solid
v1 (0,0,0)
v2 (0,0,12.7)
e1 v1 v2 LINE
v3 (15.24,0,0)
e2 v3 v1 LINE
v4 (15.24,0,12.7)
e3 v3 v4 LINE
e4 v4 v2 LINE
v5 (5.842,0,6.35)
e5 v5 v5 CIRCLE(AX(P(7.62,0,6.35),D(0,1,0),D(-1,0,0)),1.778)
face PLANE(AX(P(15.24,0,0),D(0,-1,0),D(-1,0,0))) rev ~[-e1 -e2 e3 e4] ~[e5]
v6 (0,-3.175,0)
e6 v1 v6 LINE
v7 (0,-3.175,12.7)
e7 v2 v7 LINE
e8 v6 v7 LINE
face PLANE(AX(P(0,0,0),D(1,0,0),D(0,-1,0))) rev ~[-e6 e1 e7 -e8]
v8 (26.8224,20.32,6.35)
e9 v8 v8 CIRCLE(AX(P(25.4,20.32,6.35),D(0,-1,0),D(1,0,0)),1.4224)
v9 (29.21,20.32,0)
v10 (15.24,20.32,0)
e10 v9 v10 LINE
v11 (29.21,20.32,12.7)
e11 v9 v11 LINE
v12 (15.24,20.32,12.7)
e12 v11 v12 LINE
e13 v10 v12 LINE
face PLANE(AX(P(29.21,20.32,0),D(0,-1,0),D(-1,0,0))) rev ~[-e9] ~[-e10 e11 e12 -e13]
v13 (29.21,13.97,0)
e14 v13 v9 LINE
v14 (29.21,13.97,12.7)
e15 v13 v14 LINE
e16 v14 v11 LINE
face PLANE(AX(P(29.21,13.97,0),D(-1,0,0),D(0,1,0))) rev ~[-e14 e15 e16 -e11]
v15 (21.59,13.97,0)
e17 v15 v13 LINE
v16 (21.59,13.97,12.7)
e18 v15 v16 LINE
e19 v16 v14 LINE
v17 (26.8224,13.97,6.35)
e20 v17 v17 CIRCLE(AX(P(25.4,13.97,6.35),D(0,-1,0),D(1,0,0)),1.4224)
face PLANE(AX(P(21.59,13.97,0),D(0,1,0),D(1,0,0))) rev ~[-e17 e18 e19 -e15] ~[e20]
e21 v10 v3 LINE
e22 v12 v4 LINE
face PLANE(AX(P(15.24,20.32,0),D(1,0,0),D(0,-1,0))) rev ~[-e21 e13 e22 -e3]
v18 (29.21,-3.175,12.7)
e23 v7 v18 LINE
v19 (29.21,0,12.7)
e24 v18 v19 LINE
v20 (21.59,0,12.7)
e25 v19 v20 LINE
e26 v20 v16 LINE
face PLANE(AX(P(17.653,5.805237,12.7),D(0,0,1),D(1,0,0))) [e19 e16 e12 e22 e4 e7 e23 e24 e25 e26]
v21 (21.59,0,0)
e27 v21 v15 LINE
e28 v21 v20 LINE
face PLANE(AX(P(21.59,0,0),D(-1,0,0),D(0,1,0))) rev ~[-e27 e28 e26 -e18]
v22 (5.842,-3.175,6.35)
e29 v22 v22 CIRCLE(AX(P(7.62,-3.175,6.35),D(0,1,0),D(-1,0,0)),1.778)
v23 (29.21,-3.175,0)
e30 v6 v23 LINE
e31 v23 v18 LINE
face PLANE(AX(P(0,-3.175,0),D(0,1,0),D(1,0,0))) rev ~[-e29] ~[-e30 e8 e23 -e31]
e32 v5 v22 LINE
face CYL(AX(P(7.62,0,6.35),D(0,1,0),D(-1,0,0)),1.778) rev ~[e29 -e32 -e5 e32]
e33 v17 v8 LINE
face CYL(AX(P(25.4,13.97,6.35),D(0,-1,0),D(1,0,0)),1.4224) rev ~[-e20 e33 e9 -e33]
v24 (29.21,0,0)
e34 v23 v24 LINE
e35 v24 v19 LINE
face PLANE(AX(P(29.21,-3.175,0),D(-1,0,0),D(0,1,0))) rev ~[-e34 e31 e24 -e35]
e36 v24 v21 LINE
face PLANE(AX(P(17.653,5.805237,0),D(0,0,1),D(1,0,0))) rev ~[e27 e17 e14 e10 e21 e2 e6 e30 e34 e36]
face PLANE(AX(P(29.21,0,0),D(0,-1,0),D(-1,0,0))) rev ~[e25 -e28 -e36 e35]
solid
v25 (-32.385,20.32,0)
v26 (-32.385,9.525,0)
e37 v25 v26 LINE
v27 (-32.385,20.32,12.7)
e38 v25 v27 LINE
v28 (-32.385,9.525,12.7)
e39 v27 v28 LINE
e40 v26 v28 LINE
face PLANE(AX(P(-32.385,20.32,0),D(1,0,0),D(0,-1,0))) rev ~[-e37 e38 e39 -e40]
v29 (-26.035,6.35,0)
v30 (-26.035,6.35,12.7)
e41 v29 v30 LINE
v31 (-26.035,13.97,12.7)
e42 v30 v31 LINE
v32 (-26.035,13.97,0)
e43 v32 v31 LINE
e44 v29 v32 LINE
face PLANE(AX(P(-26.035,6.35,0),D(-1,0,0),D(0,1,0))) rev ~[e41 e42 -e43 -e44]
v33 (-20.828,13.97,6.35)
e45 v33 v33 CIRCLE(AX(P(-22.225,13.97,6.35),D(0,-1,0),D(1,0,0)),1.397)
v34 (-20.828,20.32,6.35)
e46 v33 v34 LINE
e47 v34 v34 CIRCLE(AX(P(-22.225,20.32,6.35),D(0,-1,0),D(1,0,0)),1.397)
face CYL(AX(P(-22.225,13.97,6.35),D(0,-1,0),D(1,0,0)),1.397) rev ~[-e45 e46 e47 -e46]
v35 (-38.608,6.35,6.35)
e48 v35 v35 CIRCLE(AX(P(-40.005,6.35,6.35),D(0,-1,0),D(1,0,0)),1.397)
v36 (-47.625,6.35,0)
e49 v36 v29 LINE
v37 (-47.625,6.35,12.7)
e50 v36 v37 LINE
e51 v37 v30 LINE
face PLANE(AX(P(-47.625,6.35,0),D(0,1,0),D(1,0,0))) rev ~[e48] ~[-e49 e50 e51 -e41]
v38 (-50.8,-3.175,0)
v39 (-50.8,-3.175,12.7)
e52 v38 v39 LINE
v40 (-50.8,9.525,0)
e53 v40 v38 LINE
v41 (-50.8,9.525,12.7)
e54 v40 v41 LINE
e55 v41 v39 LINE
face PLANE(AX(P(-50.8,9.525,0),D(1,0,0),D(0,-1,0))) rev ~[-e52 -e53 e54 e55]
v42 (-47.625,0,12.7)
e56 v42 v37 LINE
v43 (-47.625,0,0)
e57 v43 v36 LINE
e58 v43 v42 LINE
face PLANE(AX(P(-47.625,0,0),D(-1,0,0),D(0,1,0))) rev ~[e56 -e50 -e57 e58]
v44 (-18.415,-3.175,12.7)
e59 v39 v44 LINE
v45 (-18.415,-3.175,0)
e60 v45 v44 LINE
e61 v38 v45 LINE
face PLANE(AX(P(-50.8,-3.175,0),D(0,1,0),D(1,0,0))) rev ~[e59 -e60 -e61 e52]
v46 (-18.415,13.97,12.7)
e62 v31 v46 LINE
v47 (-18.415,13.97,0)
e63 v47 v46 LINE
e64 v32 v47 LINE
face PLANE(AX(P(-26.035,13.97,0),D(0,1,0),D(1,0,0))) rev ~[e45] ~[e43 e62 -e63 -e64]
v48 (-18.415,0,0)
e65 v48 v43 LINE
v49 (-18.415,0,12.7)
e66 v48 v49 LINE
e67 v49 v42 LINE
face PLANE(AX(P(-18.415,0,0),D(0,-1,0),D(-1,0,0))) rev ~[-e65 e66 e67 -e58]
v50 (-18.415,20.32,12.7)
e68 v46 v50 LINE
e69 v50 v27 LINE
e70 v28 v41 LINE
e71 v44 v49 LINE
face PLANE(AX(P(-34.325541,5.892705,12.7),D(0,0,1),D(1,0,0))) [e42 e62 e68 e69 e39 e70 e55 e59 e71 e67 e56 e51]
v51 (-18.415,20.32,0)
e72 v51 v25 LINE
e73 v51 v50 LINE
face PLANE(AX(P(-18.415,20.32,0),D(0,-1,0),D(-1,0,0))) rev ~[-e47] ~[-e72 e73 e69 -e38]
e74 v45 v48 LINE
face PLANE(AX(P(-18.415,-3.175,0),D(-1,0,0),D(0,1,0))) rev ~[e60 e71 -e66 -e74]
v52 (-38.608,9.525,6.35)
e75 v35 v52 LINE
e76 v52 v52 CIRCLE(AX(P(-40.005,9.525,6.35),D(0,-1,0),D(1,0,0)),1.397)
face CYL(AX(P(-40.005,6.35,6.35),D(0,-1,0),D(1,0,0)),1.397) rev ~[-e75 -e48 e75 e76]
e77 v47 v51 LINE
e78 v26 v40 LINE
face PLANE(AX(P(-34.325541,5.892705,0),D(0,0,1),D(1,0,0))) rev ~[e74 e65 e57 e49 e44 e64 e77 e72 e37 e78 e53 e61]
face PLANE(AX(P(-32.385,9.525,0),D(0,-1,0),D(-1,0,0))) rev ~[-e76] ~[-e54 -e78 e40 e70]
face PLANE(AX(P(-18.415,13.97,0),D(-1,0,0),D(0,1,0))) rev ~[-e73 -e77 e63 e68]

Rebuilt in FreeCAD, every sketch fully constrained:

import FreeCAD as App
import Part
import Sketcher
Q = App.Units.Quantity


def add_polygon(sketch, points):
    """Adds a closed chain of lines whose ends are joined by coincident constraints."""
    first, n = sketch.GeometryCount, len(points)
    for a, b in zip(points, points[1:] + points[:1]):
        sketch.addGeometry(Part.LineSegment(App.Vector(*a, 0), App.Vector(*b, 0)), False)
    for i in range(n):
        sketch.addConstraint(Sketcher.Constraint("Coincident", first + i, 2, first + (i + 1) % n, 1))

doc = App.newDocument("Part")
body = doc.addObject("PartDesign::Body", "Body")

# Sketch on XY plane
sketch1 = doc.addObject("Sketcher::SketchObject", "Sketch")
body.addObject(sketch1)
sketch1.AttachmentSupport = (doc.XY_Plane, [""])
sketch1.MapMode = "FlatFace"
add_polygon(sketch1, [(15.2, 0), (0, 0), (0, -3.2), (29.2, -3.2), (29.2, 0), (21.6, 0), (21.6, 14), (29.2, 14), (29.2, 20.3), (15.2, 20.3)])  # lines 0-9
sketch1.addConstraint([
    Sketcher.Constraint("Horizontal", 0),
    Sketcher.Constraint("Vertical", 1),
    Sketcher.Constraint("Horizontal", 2),
    Sketcher.Constraint("Vertical", 3),
    Sketcher.Constraint("Horizontal", 4),
    Sketcher.Constraint("Vertical", 5),
    Sketcher.Constraint("Horizontal", 6),
    Sketcher.Constraint("Vertical", 7),
    Sketcher.Constraint("Horizontal", 8),
    Sketcher.Constraint("Vertical", 9),
    Sketcher.Constraint("Coincident", 0, 2, -1, 1),
    Sketcher.Constraint("PointOnObject", 3, 2, -1),
    Sketcher.Constraint("Vertical", 3, 2, 6, 2),
    Sketcher.Constraint("Equal", 8, 5),
    Sketcher.Constraint("DistanceX", 0, 2, 0, 1, Q("0.6 in")),
    Sketcher.Constraint("DistanceX", 4, 2, 4, 1, Q("0.3 in")),
    Sketcher.Constraint("DistanceY", 9, 2, 9, 1, Q("0.8 in")),
    Sketcher.Constraint("DistanceX", 2, 1, 2, 2, Q("1.15 in")),
    Sketcher.Constraint("DistanceY", 1, 2, 1, 1, Q("0.125 in")),
])
pad1 = doc.addObject("PartDesign::Pad", "Pad")
body.addObject(pad1)
pad1.Profile = sketch1
pad1.Length = Q("0.5 in")

# Sketch on XZ plane
sketch2 = doc.addObject("Sketcher::SketchObject", "Sketch001")
body.addObject(sketch2)
sketch2.AttachmentSupport = (doc.XZ_Plane, [""])
sketch2.MapMode = "FlatFace"
sketch2.AttachmentOffset = App.Placement(App.Vector(0, 0, -0.55 * 25.4), App.Rotation())
sketch2.addGeometry(Part.Circle(App.Vector(25.4, 6.3, 0), App.Vector(0, 0, 1), 1.4), False)
sketch2.addConstraint([
    Sketcher.Constraint("Diameter", 0, Q("0.112 in")),
    Sketcher.Constraint("DistanceX", -1, 1, 0, 3, Q("1 in")),
    Sketcher.Constraint("DistanceY", -1, 1, 0, 3, Q("0.25 in")),
])
pocket1 = doc.addObject("PartDesign::Pocket", "Pocket")
body.addObject(pocket1)
pocket1.Profile = sketch2
pocket1.Length = Q("1 in")

# Sketch on XZ plane
sketch3 = doc.addObject("Sketcher::SketchObject", "Sketch002")
body.addObject(sketch3)
sketch3.AttachmentSupport = (doc.XZ_Plane, [""])
sketch3.MapMode = "FlatFace"
sketch3.addGeometry(Part.Circle(App.Vector(7.6, 6.3, 0), App.Vector(0, 0, 1), 1.8), False)
sketch3.addConstraint([
    Sketcher.Constraint("Diameter", 0, Q("0.14 in")),
    Sketcher.Constraint("DistanceX", -1, 1, 0, 3, Q("0.3 in")),
    Sketcher.Constraint("DistanceY", -1, 1, 0, 3, Q("0.25 in")),
])
pocket2 = doc.addObject("PartDesign::Pocket", "Pocket001")
body.addObject(pocket2)
pocket2.Profile = sketch3
pocket2.Length = Q("1 in")
pocket2.Reversed = True
body2 = doc.addObject("PartDesign::Body", "Body001")

# Sketch on XY plane
sketch4 = doc.addObject("Sketcher::SketchObject", "Sketch003")
body2.addObject(sketch4)
sketch4.AttachmentSupport = (doc.getObject("XY_Plane001"), [""])
sketch4.MapMode = "FlatFace"
add_polygon(sketch4, [(-47.6, 0), (-47.6, 6.3), (-26, 6.3), (-26, 14), (-18.4, 14), (-18.4, 20.3), (-32.4, 20.3), (-32.4, 9.5), (-50.8, 9.5), (-50.8, -3.2), (-18.4, -3.2), (-18.4, 0)])  # lines 0-11
sketch4.addConstraint([
    Sketcher.Constraint("Vertical", 0),
    Sketcher.Constraint("Horizontal", 1),
    Sketcher.Constraint("Vertical", 2),
    Sketcher.Constraint("Horizontal", 3),
    Sketcher.Constraint("Vertical", 4),
    Sketcher.Constraint("Horizontal", 5),
    Sketcher.Constraint("Vertical", 6),
    Sketcher.Constraint("Horizontal", 7),
    Sketcher.Constraint("Vertical", 8),
    Sketcher.Constraint("Horizontal", 9),
    Sketcher.Constraint("Vertical", 10),
    Sketcher.Constraint("Horizontal", 11),
    Sketcher.Constraint("PointOnObject", 10, 2, -1),
    Sketcher.Constraint("Vertical", 4, 2, 9, 2),
    Sketcher.Constraint("Equal", 3, 2),
    Sketcher.Constraint("Equal", 0, 4),
    Sketcher.Constraint("DistanceX", 3, 1, 3, 2, Q("0.3 in")),
    Sketcher.Constraint("DistanceY", 8, 2, 8, 1, Q("0.5 in")),
    Sketcher.Constraint("DistanceX", 7, 2, -1, 1, Q("2 in")),
    Sketcher.Constraint("DistanceX", 1, 1, 1, 2, Q("0.85 in")),
    Sketcher.Constraint("DistanceX", 5, 2, 5, 1, Q("0.55 in")),
    Sketcher.Constraint("DistanceY", 0, 1, 0, 2, Q("0.25 in")),
    Sketcher.Constraint("DistanceX", 7, 2, 7, 1, Q("0.725 in")),
    Sketcher.Constraint("DistanceY", 6, 2, 6, 1, Q("0.425 in")),
])
pad2 = doc.addObject("PartDesign::Pad", "Pad001")
body2.addObject(pad2)
pad2.Profile = sketch4
pad2.Length = Q("0.5 in")

# Sketch on XZ plane
sketch5 = doc.addObject("Sketcher::SketchObject", "Sketch004")
body2.addObject(sketch5)
sketch5.AttachmentSupport = (doc.getObject("XZ_Plane001"), [""])
sketch5.MapMode = "FlatFace"
sketch5.AttachmentOffset = App.Placement(App.Vector(0, 0, -0.55 * 25.4), App.Rotation())
sketch5.addGeometry(Part.Circle(App.Vector(-22.2, 6.3, 0), App.Vector(0, 0, 1), 1.4), False)
sketch5.addConstraint([
    Sketcher.Constraint("Diameter", 0, Q("0.11 in")),
    Sketcher.Constraint("DistanceY", -1, 1, 0, 3, Q("0.25 in")),
    Sketcher.Constraint("DistanceX", 0, 3, -1, 1, Q("0.875 in")),
])
pocket3 = doc.addObject("PartDesign::Pocket", "Pocket002")
body2.addObject(pocket3)
pocket3.Profile = sketch5
pocket3.Length = Q("1 in")

# Sketch on XZ plane
sketch6 = doc.addObject("Sketcher::SketchObject", "Sketch005")
body2.addObject(sketch6)
sketch6.AttachmentSupport = (doc.getObject("XZ_Plane001"), [""])
sketch6.MapMode = "FlatFace"
sketch6.AttachmentOffset = App.Placement(App.Vector(0, 0, -0.25 * 25.4), App.Rotation())
sketch6.addGeometry(Part.Circle(App.Vector(-40, 6.3, 0), App.Vector(0, 0, 1), 1.4), False)
sketch6.addConstraint([
    Sketcher.Constraint("Diameter", 0, Q("0.11 in")),
    Sketcher.Constraint("DistanceY", -1, 1, 0, 3, Q("0.25 in")),
    Sketcher.Constraint("DistanceX", 0, 3, -1, 1, Q("1.575 in")),
])
pocket4 = doc.addObject("PartDesign::Pocket", "Pocket003")
body2.addObject(pocket4)
pocket4.Profile = sketch6
pocket4.Length = Q("1 in")

doc.recompute()
